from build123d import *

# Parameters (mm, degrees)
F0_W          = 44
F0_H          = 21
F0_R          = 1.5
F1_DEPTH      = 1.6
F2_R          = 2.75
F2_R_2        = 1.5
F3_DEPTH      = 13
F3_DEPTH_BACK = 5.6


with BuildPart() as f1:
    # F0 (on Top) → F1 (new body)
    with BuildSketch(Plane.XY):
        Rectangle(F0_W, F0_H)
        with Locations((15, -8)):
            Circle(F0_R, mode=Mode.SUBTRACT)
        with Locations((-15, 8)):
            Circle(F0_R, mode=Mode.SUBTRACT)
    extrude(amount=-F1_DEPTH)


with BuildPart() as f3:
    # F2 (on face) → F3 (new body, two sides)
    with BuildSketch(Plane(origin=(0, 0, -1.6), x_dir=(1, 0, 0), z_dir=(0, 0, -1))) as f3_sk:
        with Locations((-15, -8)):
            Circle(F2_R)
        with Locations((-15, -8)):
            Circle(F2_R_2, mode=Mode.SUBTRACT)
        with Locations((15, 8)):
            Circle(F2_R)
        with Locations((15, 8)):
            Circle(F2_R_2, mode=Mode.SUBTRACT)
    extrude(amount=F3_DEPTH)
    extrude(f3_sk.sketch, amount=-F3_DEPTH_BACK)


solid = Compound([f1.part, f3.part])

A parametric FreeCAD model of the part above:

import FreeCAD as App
import Part
import Sketcher
from FreeCAD import Vector
Q = App.Units.Quantity

doc = App.newDocument("Part")
body = doc.addObject("PartDesign::Body", "Body")

sketch1 = body.newObject("Sketcher::SketchObject", "Sketch")
sketch1.AttachmentSupport = (doc.getObject("XY_Plane"), [""])
sketch1.MapMode = "FlatFace"
sketch1.addGeometry([
    Part.LineSegment(Vector(-22, 10.5, 0), Vector(-22, -10.5, 0)),
    Part.LineSegment(Vector(-22, -10.5, 0), Vector(22, -10.5, 0)),
    Part.LineSegment(Vector(22, -10.5, 0), Vector(22, 10.5, 0)),
    Part.LineSegment(Vector(22, 10.5, 0), Vector(-22, 10.5, 0)),
    Part.Circle(Vector(15, -8, 0), Vector(0, 0, 1), 1.5),
    Part.Circle(Vector(-15, 8, 0), Vector(0, 0, 1), 1.5),
], False)
sketch1.addConstraint([
    Sketcher.Constraint("Coincident", 0, 2, 1, 1),
    Sketcher.Constraint("Coincident", 1, 2, 2, 1),
    Sketcher.Constraint("Coincident", 2, 2, 3, 1),
    Sketcher.Constraint("Coincident", 3, 2, 0, 1),
    Sketcher.Constraint("Vertical", 0),
    Sketcher.Constraint("Horizontal", 1),
    Sketcher.Constraint("Vertical", 2),
    Sketcher.Constraint("Horizontal", 3),
    Sketcher.Constraint("Equal", 4, 5),
    Sketcher.Constraint("Symmetric", 4, 3, 5, 3, -1, 1),
    Sketcher.Constraint("Symmetric", 0, 2, 2, 2, -1, 1),
    Sketcher.Constraint("Diameter", 4, Q("3 mm")),
    Sketcher.Constraint("DistanceX", 1, 1, 1, 2, Q("44 mm")),
    Sketcher.Constraint("DistanceY", 0, 2, 0, 1, Q("21 mm")),
    Sketcher.Constraint("DistanceX", -1, 1, 4, 3, Q("15 mm")),
    Sketcher.Constraint("DistanceY", 4, 3, -1, 1, Q("8 mm")),
])
pad1 = body.newObject("PartDesign::Pad", "Pad")
pad1.Profile = sketch1
pad1.Length = 1.6
pad1.Reversed = True
body2 = doc.addObject("PartDesign::Body", "Body001")
body2.AllowCompound = True

sketch2 = body2.newObject("Sketcher::SketchObject", "Sketch001")
sketch2.AttachmentSupport = (doc.getObject("XY_Plane001"), [""])
sketch2.MapMode = "FlatFace"
sketch2.AttachmentOffset = App.Placement(Vector(0, 0, -1.6), App.Rotation())
sketch2.addGeometry([
    Part.Circle(Vector(-15, 8, 0), Vector(0, 0, 1), 2.8),
    Part.Circle(Vector(-15, 8, 0), Vector(0, 0, 1), 1.5),
    Part.Circle(Vector(15, -8, 0), Vector(0, 0, 1), 2.8),
    Part.Circle(Vector(15, -8, 0), Vector(0, 0, 1), 1.5),
], False)
sketch2.addConstraint([
    Sketcher.Constraint("Coincident", 1, 3, 0, 3),
    Sketcher.Constraint("Coincident", 3, 3, 2, 3),
    Sketcher.Constraint("Equal", 0, 2),
    Sketcher.Constraint("Equal", 1, 3),
    Sketcher.Constraint("Symmetric", 0, 3, 2, 3, -1, 1),
    Sketcher.Constraint("Diameter", 1, Q("3 mm")),
    Sketcher.Constraint("Diameter", 0, Q("5.5 mm")),
    Sketcher.Constraint("DistanceX", 0, 3, -1, 1, Q("15 mm")),
    Sketcher.Constraint("DistanceY", -1, 1, 0, 3, Q("8 mm")),
])
pad2 = body2.newObject("PartDesign::Pad", "Pad001")
pad2.Profile = sketch2
pad2.Type = "TwoLengths"
pad2.Length = 13
pad2.Length2 = 5.6
pad2.Reversed = True

doc.recompute()
